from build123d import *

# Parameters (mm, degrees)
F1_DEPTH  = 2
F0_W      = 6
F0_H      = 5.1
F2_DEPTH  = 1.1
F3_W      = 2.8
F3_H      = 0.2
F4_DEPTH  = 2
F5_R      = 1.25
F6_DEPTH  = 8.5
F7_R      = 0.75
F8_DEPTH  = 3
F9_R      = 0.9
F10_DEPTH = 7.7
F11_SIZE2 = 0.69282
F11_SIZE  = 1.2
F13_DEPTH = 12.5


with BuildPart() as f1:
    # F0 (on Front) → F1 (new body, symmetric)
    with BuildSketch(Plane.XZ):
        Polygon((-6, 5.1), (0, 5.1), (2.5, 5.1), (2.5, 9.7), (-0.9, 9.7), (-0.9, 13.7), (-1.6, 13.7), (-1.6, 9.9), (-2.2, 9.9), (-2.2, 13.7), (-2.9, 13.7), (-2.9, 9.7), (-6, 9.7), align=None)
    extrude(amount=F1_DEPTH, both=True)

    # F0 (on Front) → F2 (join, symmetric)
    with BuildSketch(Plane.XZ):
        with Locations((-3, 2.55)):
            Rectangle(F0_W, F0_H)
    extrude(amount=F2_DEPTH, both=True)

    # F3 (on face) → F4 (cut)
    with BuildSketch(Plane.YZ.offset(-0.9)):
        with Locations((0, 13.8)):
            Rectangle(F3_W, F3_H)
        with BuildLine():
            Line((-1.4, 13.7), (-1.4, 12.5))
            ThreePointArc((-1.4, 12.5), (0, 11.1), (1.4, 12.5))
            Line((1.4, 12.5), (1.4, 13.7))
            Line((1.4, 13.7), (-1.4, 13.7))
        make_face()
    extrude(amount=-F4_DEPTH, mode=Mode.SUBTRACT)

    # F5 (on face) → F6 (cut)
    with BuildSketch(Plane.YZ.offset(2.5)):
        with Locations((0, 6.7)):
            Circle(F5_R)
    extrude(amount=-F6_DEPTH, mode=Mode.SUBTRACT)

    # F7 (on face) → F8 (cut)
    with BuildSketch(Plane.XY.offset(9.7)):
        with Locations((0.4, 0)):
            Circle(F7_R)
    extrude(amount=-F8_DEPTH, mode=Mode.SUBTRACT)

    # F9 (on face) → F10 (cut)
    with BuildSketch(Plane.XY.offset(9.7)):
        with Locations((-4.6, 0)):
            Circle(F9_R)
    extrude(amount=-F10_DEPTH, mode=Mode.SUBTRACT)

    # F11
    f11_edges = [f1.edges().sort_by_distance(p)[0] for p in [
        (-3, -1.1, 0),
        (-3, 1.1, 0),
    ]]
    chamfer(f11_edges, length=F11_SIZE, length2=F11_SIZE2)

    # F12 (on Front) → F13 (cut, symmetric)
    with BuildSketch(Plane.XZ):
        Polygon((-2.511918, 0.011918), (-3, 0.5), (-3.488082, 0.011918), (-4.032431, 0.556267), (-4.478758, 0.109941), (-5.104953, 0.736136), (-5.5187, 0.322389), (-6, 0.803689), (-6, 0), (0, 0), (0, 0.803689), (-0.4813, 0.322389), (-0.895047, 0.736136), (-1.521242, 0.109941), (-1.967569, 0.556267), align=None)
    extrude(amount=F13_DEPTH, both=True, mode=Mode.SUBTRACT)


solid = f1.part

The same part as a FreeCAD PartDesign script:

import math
import FreeCAD as App
import Part
import Sketcher


def edges_at(feature, points):
    """Names of the edges that pass closest to the given points."""
    edges = feature.Shape.Edges
    near = lambda p: min(range(len(edges)), key=lambda i: edges[i].distToShape(Part.Vertex(*p))[0])
    return sorted({f"Edge{near(p) + 1}" for p in points})


def add_polygon(sketch, points):
    """Adds a closed chain of lines whose ends are joined by coincident constraints."""
    first, n = sketch.GeometryCount, len(points)
    for a, b in zip(points, points[1:] + points[:1]):
        sketch.addGeometry(Part.LineSegment(App.Vector(*a, 0), App.Vector(*b, 0)), False)
    for i in range(n):
        sketch.addConstraint(Sketcher.Constraint("Coincident", first + i, 2, first + (i + 1) % n, 1))

doc = App.newDocument("Part")
body = doc.addObject("PartDesign::Body", "Body")

# Sketch on XZ plane
sketch1 = body.newObject("Sketcher::SketchObject", "Sketch")
sketch1.AttachmentSupport = (doc.getObject("XZ_Plane"), [""])
sketch1.MapMode = "FlatFace"
add_polygon(sketch1, [(-6, 5.1), (2.5, 5.1), (2.5, 9.7), (-0.9, 9.7), (-0.9, 13.7), (-1.6, 13.7), (-1.6, 9.9), (-2.2, 9.9), (-2.2, 13.7), (-2.9, 13.7), (-2.9, 9.7), (-6, 9.7)])  # lines 0-11
sketch1.addConstraint(Sketcher.Constraint("Horizontal", 0))
sketch1.addConstraint(Sketcher.Constraint("Vertical", 1))
sketch1.addConstraint(Sketcher.Constraint("Horizontal", 2))
sketch1.addConstraint(Sketcher.Constraint("Vertical", 3))
sketch1.addConstraint(Sketcher.Constraint("Horizontal", 4))
sketch1.addConstraint(Sketcher.Constraint("Vertical", 5))
sketch1.addConstraint(Sketcher.Constraint("Horizontal", 6))
sketch1.addConstraint(Sketcher.Constraint("Vertical", 7))
sketch1.addConstraint(Sketcher.Constraint("Horizontal", 8))
sketch1.addConstraint(Sketcher.Constraint("Vertical", 9))
sketch1.addConstraint(Sketcher.Constraint("Horizontal", 10))
sketch1.addConstraint(Sketcher.Constraint("Vertical", 11))
sketch1.addConstraint(Sketcher.Constraint("Horizontal", 4, 2, 7, 2))
sketch1.addConstraint(Sketcher.Constraint("Horizontal", 2, 2, 9, 2))
sketch1.addConstraint(Sketcher.Constraint("Equal", 4, 8))
sketch1.addConstraint(Sketcher.Constraint("DistanceY", 3, 1, 3, 2, 4.0))
sketch1.addConstraint(Sketcher.Constraint("DistanceX", 0, 1, 0, 2, 8.5))
sketch1.addConstraint(Sketcher.Constraint("DistanceX", 2, 2, 2, 1, 3.4))
sketch1.addConstraint(Sketcher.Constraint("DistanceX", 4, 2, 4, 1, 0.7))
sketch1.addConstraint(Sketcher.Constraint("DistanceX", 6, 2, 6, 1, 0.6))
sketch1.addConstraint(Sketcher.Constraint("DistanceY", 1, 1, 1, 2, 4.6))
sketch1.addConstraint(Sketcher.Constraint("DistanceY", 5, 2, 5, 1, 3.8))
sketch1.addConstraint(Sketcher.Constraint("DistanceX", 10, 2, -1, 1, 6.0))
sketch1.addConstraint(Sketcher.Constraint("DistanceY", -1, 1, 0, 2, 5.1))
pad1 = body.newObject("PartDesign::Pad", "Pad")
pad1.Profile = sketch1
pad1.Length = 4
pad1.Midplane = True

# Sketch on XZ plane
sketch2 = body.newObject("Sketcher::SketchObject", "Sketch001")
sketch2.AttachmentSupport = (doc.getObject("XZ_Plane"), [""])
sketch2.MapMode = "FlatFace"
add_polygon(sketch2, [(-6, 5), (-6, 0), (0, 0), (0, 5)])  # lines 0-3
sketch2.addConstraint(Sketcher.Constraint("Vertical", 0))
sketch2.addConstraint(Sketcher.Constraint("Horizontal", 1))
sketch2.addConstraint(Sketcher.Constraint("Vertical", 2))
sketch2.addConstraint(Sketcher.Constraint("Horizontal", 3))
sketch2.addConstraint(Sketcher.Constraint("Coincident", 1, 2, -1, 1))
sketch2.addConstraint(Sketcher.Constraint("DistanceX", 1, 1, 1, 2, 6.0))
sketch2.addConstraint(Sketcher.Constraint("DistanceY", 0, 2, 0, 1, 5.1))
pad2 = body.newObject("PartDesign::Pad", "Pad001")
pad2.Profile = sketch2
pad2.Length = 2.2
pad2.Midplane = True

# Sketch on YZ plane
sketch3 = body.newObject("Sketcher::SketchObject", "Sketch002")
sketch3.AttachmentSupport = (doc.getObject("YZ_Plane"), [""])
sketch3.MapMode = "FlatFace"
sketch3.AttachmentOffset = App.Placement(App.Vector(0, 0, -0.9), App.Rotation())
sketch3.addGeometry(Part.LineSegment(App.Vector(-1.4, 13.9, 0), App.Vector(-1.4, 12.5, 0)), False)
sketch3.addGeometry(Part.ArcOfCircle(Part.Circle(App.Vector(0, 12.5, 0), App.Vector(0, 0, 1), 1.4), math.radians(180), math.radians(360)), False)
sketch3.addGeometry(Part.LineSegment(App.Vector(1.4, 12.5, 0), App.Vector(1.4, 13.9, 0)), False)
sketch3.addGeometry(Part.LineSegment(App.Vector(1.4, 13.9, 0), App.Vector(-1.4, 13.9, 0)), False)
sketch3.addConstraint(Sketcher.Constraint("Tangent", 0, 2, 1, 1))
sketch3.addConstraint(Sketcher.Constraint("Tangent", 1, 2, 2, 1))
sketch3.addConstraint(Sketcher.Constraint("Coincident", 2, 2, 3, 1))
sketch3.addConstraint(Sketcher.Constraint("Coincident", 3, 2, 0, 1))
sketch3.addConstraint(Sketcher.Constraint("Vertical", 0))
sketch3.addConstraint(Sketcher.Constraint("Vertical", 2))
sketch3.addConstraint(Sketcher.Constraint("Horizontal", 3))
sketch3.addConstraint(Sketcher.Constraint("PointOnObject", 1, 3, -2))
sketch3.addConstraint(Sketcher.Constraint("Radius", 1, 1.4))
sketch3.addConstraint(Sketcher.Constraint("DistanceY", 0, 2, 0, 1, 1.4))
sketch3.addConstraint(Sketcher.Constraint("DistanceY", -1, 1, 1, 3, 12.5))
pocket1 = body.newObject("PartDesign::Pocket", "Pocket")
pocket1.Profile = sketch3
pocket1.Length = 2

# Sketch on YZ plane
sketch4 = body.newObject("Sketcher::SketchObject", "Sketch003")
sketch4.AttachmentSupport = (doc.getObject("YZ_Plane"), [""])
sketch4.MapMode = "FlatFace"
sketch4.AttachmentOffset = App.Placement(App.Vector(0, 0, 2.5), App.Rotation())
sketch4.addGeometry(Part.Circle(App.Vector(0, 6.7, 0), App.Vector(0, 0, 1), 1.2), False)
sketch4.addConstraint(Sketcher.Constraint("PointOnObject", 0, 3, -2))
sketch4.addConstraint(Sketcher.Constraint("Diameter", 0, 2.5))
sketch4.addConstraint(Sketcher.Constraint("DistanceY", -1, 1, 0, 3, 6.7))
pocket2 = body.newObject("PartDesign::Pocket", "Pocket001")
pocket2.Profile = sketch4
pocket2.Length = 8.5

# Sketch on XY plane
sketch5 = body.newObject("Sketcher::SketchObject", "Sketch004")
sketch5.AttachmentSupport = (doc.getObject("XY_Plane"), [""])
sketch5.MapMode = "FlatFace"
sketch5.AttachmentOffset = App.Placement(App.Vector(0, 0, 9.7), App.Rotation())
sketch5.addGeometry(Part.Circle(App.Vector(0.4, 0, 0), App.Vector(0, 0, 1), 0.8), False)
sketch5.addConstraint(Sketcher.Constraint("PointOnObject", 0, 3, -1))
sketch5.addConstraint(Sketcher.Constraint("Diameter", 0, 1.5))
sketch5.addConstraint(Sketcher.Constraint("DistanceX", -1, 1, 0, 3, 0.4))
pocket3 = body.newObject("PartDesign::Pocket", "Pocket002")
pocket3.Profile = sketch5
pocket3.Length = 3

# Sketch on XY plane
sketch6 = body.newObject("Sketcher::SketchObject", "Sketch005")
sketch6.AttachmentSupport = (doc.getObject("XY_Plane"), [""])
sketch6.MapMode = "FlatFace"
sketch6.AttachmentOffset = App.Placement(App.Vector(0, 0, 9.7), App.Rotation())
sketch6.addGeometry(Part.Circle(App.Vector(-4.6, 0, 0), App.Vector(0, 0, 1), 0.9), False)
sketch6.addConstraint(Sketcher.Constraint("PointOnObject", 0, 3, -1))
sketch6.addConstraint(Sketcher.Constraint("Diameter", 0, 1.8))
sketch6.addConstraint(Sketcher.Constraint("DistanceX", 0, 3, -1, 1, 4.6))
pocket4 = body.newObject("PartDesign::Pocket", "Pocket003")
pocket4.Profile = sketch6
pocket4.Length = 7.7
doc.recompute()

chamfer = body.newObject("PartDesign::Chamfer", "Chamfer")
chamfer.Base = (pocket4, edges_at(pocket4, [(-3, -1.1, 0), (-3, 1.1, 0)]))
chamfer.ChamferType = "Two distances"
chamfer.Size = 1.2
chamfer.Size2 = 0.69282

# Sketch on XZ plane
sketch7 = body.newObject("Sketcher::SketchObject", "Sketch006")
sketch7.AttachmentSupport = (doc.getObject("XZ_Plane"), [""])
sketch7.MapMode = "FlatFace"
add_polygon(sketch7, [(-2.5, 0), (-3, 0.5), (-3.5, 0), (-4, 0.6), (-4.5, 0.1), (-5.1, 0.7), (-5.5, 0.3), (-6, 0.8), (-6, 0), (0, 0), (0, 0.8), (-0.5, 0.3), (-0.9, 0.7), (-1.5, 0.1), (-2, 0.6)])  # lines 0-14
sketch7.addConstraint(Sketcher.Constraint("Vertical", 7))
sketch7.addConstraint(Sketcher.Constraint("Horizontal", 8))
sketch7.addConstraint(Sketcher.Constraint("Vertical", 9))
sketch7.addConstraint(Sketcher.Constraint("Coincident", 8, 2, -1, 1))
sketch7.addConstraint(Sketcher.Constraint("Perpendicular", 0, 1))
sketch7.addConstraint(Sketcher.Constraint("Perpendicular", 1, 2))
sketch7.addConstraint(Sketcher.Constraint("Perpendicular", 2, 3))
sketch7.addConstraint(Sketcher.Constraint("Perpendicular", 3, 4))
sketch7.addConstraint(Sketcher.Constraint("Perpendicular", 4, 5))
sketch7.addConstraint(Sketcher.Constraint("Perpendicular", 5, 6))
sketch7.addConstraint(Sketcher.Constraint("Perpendicular", 6, 10))
sketch7.addConstraint(Sketcher.Constraint("Perpendicular", 10, 11))
sketch7.addConstraint(Sketcher.Constraint("Perpendicular", 11, 12))
sketch7.addConstraint(Sketcher.Constraint("Perpendicular", 12, 13))
sketch7.addConstraint(Sketcher.Constraint("Perpendicular", 13, 14))
sketch7.addConstraint(Sketcher.Constraint("Horizontal", 6, 2, 9, 2))
sketch7.addConstraint(Sketcher.Constraint("Horizontal", 5, 2, 10, 2))
sketch7.addConstraint(Sketcher.Constraint("Horizontal", 4, 2, 11, 2))
sketch7.addConstraint(Sketcher.Constraint("Horizontal", 3, 2, 12, 2))
sketch7.addConstraint(Sketcher.Constraint("Horizontal", 2, 2, 13, 2))
sketch7.addConstraint(Sketcher.Constraint("Horizontal", 1, 2, 14, 2))
sketch7.addConstraint(Sketcher.Constraint("Equal", 0, 1))
sketch7.addConstraint(Sketcher.Constraint("DistanceX", 8, 1, 8, 2, 6.0))
sketch7.addConstraint(Sketcher.Constraint("DistanceY", -1, 1, 0, 2, 0.5))
sketch7.addConstraint(Sketcher.Constraint("Distance", 3, 0.631201))
sketch7.addConstraint(Sketcher.Constraint("DistanceY", 7, 2, 7, 1, 0.803689))
sketch7.addConstraint(Sketcher.Constraint("DistanceX", 5, 2, -1, 1, 5.5187))
sketch7.addConstraint(Sketcher.Constraint("DistanceX", 1, 2, -1, 1, 3.488082))
sketch7.addConstraint(Sketcher.Constraint("DistanceX", 2, 2, -1, 1, 4.032431))
pocket5 = body.newObject("PartDesign::Pocket", "Pocket004")
pocket5.Profile = sketch7
pocket5.Length = 25
pocket5.Midplane = True

doc.recompute()
